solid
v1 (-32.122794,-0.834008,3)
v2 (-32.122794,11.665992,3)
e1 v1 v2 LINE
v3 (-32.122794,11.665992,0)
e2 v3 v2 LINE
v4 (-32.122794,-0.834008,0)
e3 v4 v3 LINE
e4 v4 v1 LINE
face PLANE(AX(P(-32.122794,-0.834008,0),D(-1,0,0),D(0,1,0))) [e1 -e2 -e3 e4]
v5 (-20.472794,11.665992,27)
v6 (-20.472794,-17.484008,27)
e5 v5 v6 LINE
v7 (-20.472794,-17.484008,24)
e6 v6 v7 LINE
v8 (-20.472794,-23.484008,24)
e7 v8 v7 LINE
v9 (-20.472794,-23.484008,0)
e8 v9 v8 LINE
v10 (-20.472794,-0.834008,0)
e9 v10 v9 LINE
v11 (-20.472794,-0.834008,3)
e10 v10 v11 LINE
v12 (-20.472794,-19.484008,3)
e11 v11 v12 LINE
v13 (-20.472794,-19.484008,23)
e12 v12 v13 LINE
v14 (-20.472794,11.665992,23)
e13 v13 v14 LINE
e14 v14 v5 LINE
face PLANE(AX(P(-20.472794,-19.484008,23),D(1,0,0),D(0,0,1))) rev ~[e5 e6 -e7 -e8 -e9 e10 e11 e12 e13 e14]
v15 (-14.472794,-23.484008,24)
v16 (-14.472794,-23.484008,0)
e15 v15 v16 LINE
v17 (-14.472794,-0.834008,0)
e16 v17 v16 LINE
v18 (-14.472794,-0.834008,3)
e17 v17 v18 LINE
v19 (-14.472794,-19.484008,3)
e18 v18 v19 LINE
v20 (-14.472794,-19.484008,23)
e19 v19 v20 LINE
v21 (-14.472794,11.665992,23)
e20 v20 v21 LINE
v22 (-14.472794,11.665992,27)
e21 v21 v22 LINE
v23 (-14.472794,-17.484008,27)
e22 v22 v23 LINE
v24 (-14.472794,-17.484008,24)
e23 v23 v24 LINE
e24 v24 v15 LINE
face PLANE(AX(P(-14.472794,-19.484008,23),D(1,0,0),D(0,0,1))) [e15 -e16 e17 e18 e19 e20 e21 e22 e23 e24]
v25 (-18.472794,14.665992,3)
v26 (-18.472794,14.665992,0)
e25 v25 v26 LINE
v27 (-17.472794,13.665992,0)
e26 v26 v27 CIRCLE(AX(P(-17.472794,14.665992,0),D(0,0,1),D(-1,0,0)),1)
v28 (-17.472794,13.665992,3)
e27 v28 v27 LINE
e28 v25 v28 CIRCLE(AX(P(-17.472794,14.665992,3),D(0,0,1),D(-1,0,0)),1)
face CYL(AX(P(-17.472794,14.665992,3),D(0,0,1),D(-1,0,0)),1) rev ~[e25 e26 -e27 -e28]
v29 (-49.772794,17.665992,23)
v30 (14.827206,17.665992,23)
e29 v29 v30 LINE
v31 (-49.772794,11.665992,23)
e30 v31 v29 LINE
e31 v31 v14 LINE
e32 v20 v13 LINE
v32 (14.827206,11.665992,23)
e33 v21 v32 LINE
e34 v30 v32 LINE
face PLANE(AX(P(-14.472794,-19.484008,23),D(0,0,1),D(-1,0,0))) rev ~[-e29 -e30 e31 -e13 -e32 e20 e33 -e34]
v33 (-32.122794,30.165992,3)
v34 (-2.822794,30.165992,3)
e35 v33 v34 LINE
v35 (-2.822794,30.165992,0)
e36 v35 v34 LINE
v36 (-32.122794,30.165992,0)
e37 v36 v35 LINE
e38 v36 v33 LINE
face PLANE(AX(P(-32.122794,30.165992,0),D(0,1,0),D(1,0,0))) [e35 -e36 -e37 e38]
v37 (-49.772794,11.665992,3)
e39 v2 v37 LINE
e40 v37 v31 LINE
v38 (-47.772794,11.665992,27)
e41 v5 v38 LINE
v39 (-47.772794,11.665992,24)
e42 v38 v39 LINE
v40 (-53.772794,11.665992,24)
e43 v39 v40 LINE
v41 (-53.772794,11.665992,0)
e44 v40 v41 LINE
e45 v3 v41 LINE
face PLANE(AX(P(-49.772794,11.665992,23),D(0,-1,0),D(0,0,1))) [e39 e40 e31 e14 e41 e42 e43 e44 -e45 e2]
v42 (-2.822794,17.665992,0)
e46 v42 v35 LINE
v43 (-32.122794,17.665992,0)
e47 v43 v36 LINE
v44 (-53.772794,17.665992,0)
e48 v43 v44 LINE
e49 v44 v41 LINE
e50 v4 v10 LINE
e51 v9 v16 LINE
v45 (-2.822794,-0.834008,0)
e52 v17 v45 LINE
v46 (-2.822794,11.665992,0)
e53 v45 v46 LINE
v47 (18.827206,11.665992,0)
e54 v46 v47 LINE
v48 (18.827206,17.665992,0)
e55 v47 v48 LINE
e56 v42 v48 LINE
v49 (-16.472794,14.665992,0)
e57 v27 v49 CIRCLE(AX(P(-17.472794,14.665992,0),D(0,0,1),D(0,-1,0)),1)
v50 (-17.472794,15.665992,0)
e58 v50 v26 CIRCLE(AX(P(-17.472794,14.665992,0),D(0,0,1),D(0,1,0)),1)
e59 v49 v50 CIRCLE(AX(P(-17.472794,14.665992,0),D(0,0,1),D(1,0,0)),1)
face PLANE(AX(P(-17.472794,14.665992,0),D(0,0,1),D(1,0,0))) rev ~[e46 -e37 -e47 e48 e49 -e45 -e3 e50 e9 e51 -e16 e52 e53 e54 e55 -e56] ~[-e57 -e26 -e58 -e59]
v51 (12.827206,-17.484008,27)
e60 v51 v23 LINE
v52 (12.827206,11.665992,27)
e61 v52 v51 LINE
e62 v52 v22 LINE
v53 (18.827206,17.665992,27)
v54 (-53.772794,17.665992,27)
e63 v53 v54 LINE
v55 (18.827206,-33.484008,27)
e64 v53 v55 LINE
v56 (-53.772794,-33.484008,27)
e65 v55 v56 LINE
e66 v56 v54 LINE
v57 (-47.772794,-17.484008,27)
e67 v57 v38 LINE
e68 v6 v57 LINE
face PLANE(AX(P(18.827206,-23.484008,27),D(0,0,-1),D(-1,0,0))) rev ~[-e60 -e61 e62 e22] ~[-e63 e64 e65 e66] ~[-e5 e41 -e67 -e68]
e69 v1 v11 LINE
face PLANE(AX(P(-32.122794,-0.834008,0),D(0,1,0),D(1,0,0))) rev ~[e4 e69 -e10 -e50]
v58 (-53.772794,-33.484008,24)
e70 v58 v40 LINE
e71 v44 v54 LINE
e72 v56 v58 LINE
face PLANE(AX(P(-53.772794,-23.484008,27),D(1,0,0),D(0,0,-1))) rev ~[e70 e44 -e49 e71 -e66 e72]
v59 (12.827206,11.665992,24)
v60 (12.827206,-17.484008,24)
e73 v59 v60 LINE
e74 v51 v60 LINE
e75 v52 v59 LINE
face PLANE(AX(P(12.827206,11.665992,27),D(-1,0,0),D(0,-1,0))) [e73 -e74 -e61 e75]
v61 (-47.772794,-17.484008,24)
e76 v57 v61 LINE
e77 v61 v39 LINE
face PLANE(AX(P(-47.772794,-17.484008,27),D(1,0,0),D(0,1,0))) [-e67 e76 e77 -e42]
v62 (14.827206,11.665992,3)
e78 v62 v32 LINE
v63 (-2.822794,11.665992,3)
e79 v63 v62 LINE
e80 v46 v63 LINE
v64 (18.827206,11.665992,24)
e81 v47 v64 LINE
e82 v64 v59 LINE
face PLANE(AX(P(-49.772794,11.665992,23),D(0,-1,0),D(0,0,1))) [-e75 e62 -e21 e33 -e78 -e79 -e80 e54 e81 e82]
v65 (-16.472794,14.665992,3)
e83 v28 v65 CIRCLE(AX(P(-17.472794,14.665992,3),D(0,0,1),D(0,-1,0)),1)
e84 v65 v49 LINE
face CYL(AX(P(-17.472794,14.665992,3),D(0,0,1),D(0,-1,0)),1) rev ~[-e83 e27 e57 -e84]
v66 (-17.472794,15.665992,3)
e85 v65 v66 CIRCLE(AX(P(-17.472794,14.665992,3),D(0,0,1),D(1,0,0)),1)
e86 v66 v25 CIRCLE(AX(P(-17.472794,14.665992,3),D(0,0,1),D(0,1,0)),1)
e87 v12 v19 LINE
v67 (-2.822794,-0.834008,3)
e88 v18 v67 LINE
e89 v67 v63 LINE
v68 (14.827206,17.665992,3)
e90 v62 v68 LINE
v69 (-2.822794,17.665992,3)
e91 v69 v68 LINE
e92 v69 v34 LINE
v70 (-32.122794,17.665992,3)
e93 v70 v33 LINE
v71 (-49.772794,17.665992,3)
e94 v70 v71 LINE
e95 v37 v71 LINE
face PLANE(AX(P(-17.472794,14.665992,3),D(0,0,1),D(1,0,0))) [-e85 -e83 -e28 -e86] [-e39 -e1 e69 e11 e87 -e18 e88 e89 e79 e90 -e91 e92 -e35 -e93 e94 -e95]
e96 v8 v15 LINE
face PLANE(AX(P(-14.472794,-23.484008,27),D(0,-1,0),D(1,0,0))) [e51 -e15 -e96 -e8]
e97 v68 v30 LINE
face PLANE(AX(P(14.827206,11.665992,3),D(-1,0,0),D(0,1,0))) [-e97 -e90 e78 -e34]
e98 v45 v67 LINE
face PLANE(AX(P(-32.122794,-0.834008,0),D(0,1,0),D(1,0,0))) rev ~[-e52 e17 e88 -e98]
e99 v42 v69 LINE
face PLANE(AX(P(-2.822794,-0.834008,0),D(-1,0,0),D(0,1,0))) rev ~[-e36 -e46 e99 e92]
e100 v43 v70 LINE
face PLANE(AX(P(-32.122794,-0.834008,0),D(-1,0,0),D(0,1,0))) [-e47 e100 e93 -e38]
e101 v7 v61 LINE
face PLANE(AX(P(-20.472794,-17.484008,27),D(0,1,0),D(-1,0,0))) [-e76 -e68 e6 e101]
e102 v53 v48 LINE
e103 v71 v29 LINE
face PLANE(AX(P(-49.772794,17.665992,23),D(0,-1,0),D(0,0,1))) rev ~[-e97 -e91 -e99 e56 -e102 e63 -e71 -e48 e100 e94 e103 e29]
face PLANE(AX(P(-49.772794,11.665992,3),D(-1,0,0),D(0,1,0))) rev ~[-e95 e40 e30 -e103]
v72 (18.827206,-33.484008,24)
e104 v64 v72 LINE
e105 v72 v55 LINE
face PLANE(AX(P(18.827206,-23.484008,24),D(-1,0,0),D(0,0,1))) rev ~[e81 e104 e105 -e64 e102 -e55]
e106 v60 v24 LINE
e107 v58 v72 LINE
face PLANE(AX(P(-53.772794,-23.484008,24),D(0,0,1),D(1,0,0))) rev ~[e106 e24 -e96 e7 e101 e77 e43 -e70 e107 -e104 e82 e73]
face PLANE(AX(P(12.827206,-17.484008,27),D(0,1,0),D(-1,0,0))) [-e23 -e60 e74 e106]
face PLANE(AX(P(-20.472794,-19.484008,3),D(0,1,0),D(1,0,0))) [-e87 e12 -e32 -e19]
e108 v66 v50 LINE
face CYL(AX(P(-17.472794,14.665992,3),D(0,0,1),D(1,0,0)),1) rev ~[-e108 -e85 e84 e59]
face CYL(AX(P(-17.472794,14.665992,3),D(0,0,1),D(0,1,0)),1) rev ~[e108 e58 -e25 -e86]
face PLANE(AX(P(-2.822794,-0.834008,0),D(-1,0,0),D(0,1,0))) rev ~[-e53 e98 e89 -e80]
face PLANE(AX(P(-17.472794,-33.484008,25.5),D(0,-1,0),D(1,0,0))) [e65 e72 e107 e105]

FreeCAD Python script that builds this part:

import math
import FreeCAD as App
import Part
import Sketcher
from FreeCAD import Vector


def add_polygon(sketch, points):
    """Adds a closed chain of lines whose ends are joined by coincident constraints."""
    first, n = sketch.GeometryCount, len(points)
    for a, b in zip(points, points[1:] + points[:1]):
        sketch.addGeometry(Part.LineSegment(App.Vector(*a, 0), App.Vector(*b, 0)), False)
    for i in range(n):
        sketch.addConstraint(Sketcher.Constraint("Coincident", first + i, 2, first + (i + 1) % n, 1))

doc = App.newDocument("Part")
params = doc.addObject("Spreadsheet::Sheet", "Params")
for row, (alias, value) in enumerate([
    ("sketch1_height", "31 mm"),
    ("sketch1_width", "29.3 mm"),
    ("pad1_length", "3 mm"),
    ("sketch2_width", "6 mm"),
    ("sketch2_height", "3 mm"),
    ("pad2_length", "21.65 mm"),
    ("sketch3_width", "6 mm"),
    ("sketch3_height", "3 mm"),
    ("pad3_length", "21.65 mm"),
    ("sketch4_width", "6 mm"),
    ("sketch4_height", "3 mm"),
    ("pad4_length", "22.65 mm"),
    ("sketch5_width", "4 mm"),
    ("sketch5_width2", "6 mm"),
    ("pad5_length", "24 mm"),
    ("sketch6_width", "6 mm"),
    ("sketch6_height", "4 mm"),
    ("pad6_length", "35.95 mm"),
    ("sketch7_width", "6 mm"),
    ("sketch7_height", "4 mm"),
    ("pad7_length", "35.95 mm"),
    ("sketch8_width", "6 mm"),
    ("sketch8_height", "4 mm"),
    ("pad8_length", "33.8 mm"),
    ("sketch9_radius", "1 mm"),
    ("pocket1_length", "4 mm"),
    ("sketch10_width", "6 mm"),
    ("sketch10_width2", "33.3 mm"),
    ("sketch10_height", "35.15 mm"),
    ("pad9_length", "3 mm"),
    ("sketch11_height", "3 mm"),
    ("sketch11_width", "72.6 mm"),
    ("pad10_length", "10 mm"),
], start=1):
    params.set(f"A{row}", alias)
    params.set(f"B{row}", "=" + value)
    params.setAlias(f"B{row}", alias)

body = doc.addObject("PartDesign::Body", "Body")

sketch1 = doc.addObject("Sketcher::SketchObject", "Sketch")
body.addObject(sketch1)
sketch1.AttachmentSupport = (doc.XY_Plane, [""])
sketch1.MapMode = "FlatFace"
add_polygon(sketch1, [(-32, 30), (-32, -1), (-3, -1), (-3, 30)])
sketch1.addConstraint([
    Sketcher.Constraint("Vertical", 0),
    Sketcher.Constraint("Horizontal", 1),
    Sketcher.Constraint("Vertical", 2),
    Sketcher.Constraint("Horizontal", 3),
    Sketcher.Constraint("DistanceY", 0, 2, 0, 1, 31.0),
    Sketcher.Constraint("DistanceX", 1, 1, 1, 2, 29.3),
    Sketcher.Constraint("DistanceY", 0, 2, -1, 1, 0.834008),
    Sketcher.Constraint("DistanceX", 0, 2, -1, 1, 32.122794),
])
sketch1.setExpression("Constraints[8]", "Params.sketch1_height")
sketch1.setExpression("Constraints[9]", "Params.sketch1_width")
pad1 = doc.addObject("PartDesign::Pad", "Pad")
body.addObject(pad1)
pad1.Profile = sketch1
pad1.setExpression("Length", "Params.pad1_length")

sketch2 = doc.addObject("Sketcher::SketchObject", "Sketch001")
body.addObject(sketch2)
sketch2.AttachmentSupport = (doc.YZ_Plane, [""])
sketch2.MapMode = "FlatFace"
sketch2.AttachmentOffset = App.Placement(Vector(0, 0, -2.822794), App.Rotation())
add_polygon(sketch2, [(11.7, 3), (11.7, 0), (17.7, 0), (17.7, 3)])
sketch2.addConstraint([
    Sketcher.Constraint("Vertical", 0),
    Sketcher.Constraint("Horizontal", 1),
    Sketcher.Constraint("Vertical", 2),
    Sketcher.Constraint("Horizontal", 3),
    Sketcher.Constraint("PointOnObject", 0, 2, -1),
    Sketcher.Constraint("DistanceX", 1, 1, 1, 2, 6.0),
    Sketcher.Constraint("DistanceY", 0, 2, 0, 1, 3.0),
    Sketcher.Constraint("DistanceX", -1, 1, 0, 2, 11.665992),
])
sketch2.setExpression("Constraints[9]", "Params.sketch2_width")
sketch2.setExpression("Constraints[10]", "Params.sketch2_height")
pad2 = doc.addObject("PartDesign::Pad", "Pad001")
body.addObject(pad2)
pad2.Profile = sketch2
pad2.setExpression("Length", "Params.pad2_length")

sketch3 = doc.addObject("Sketcher::SketchObject", "Sketch002")
body.addObject(sketch3)
sketch3.AttachmentSupport = (doc.YZ_Plane, [""])
sketch3.MapMode = "FlatFace"
sketch3.AttachmentOffset = App.Placement(Vector(0, 0, -32.122794), App.Rotation())
add_polygon(sketch3, [(17.7, 3), (17.7, 0), (11.7, 0), (11.7, 3)])
sketch3.addConstraint([
    Sketcher.Constraint("Vertical", 0),
    Sketcher.Constraint("Horizontal", 1),
    Sketcher.Constraint("Vertical", 2),
    Sketcher.Constraint("Horizontal", 3),
    Sketcher.Constraint("PointOnObject", 0, 2, -1),
    Sketcher.Constraint("DistanceX", 1, 2, 1, 1, 6.0),
    Sketcher.Constraint("DistanceY", 0, 2, 0, 1, 3.0),
    Sketcher.Constraint("DistanceX", -1, 1, 0, 2, 17.665992),
])
sketch3.setExpression("Constraints[9]", "Params.sketch3_width")
sketch3.setExpression("Constraints[10]", "Params.sketch3_height")
pad3 = doc.addObject("PartDesign::Pad", "Pad002")
body.addObject(pad3)
pad3.Profile = sketch3
pad3.setExpression("Length", "Params.pad3_length")
pad3.Reversed = True

sketch4 = doc.addObject("Sketcher::SketchObject", "Sketch003")
body.addObject(sketch4)
sketch4.AttachmentSupport = (doc.XZ_Plane, [""])
sketch4.MapMode = "FlatFace"
sketch4.AttachmentOffset = App.Placement(Vector(0, 0, 0.834008), App.Rotation())
add_polygon(sketch4, [(-20.5, 3), (-20.5, 0), (-14.5, 0), (-14.5, 3)])
sketch4.addConstraint([
    Sketcher.Constraint("Vertical", 0),
    Sketcher.Constraint("Horizontal", 1),
    Sketcher.Constraint("Vertical", 2),
    Sketcher.Constraint("Horizontal", 3),
    Sketcher.Constraint("PointOnObject", 0, 2, -1),
    Sketcher.Constraint("DistanceX", 1, 1, 1, 2, 6.0),
    Sketcher.Constraint("DistanceY", 0, 2, 0, 1, 3.0),
    Sketcher.Constraint("DistanceX", 0, 2, -1, 1, 20.472794),
])
sketch4.setExpression("Constraints[9]", "Params.sketch4_width")
sketch4.setExpression("Constraints[10]", "Params.sketch4_height")
pad4 = doc.addObject("PartDesign::Pad", "Pad003")
body.addObject(pad4)
pad4.Profile = sketch4
pad4.setExpression("Length", "Params.pad4_length")

sketch5 = doc.addObject("Sketcher::SketchObject", "Sketch004")
body.addObject(sketch5)
sketch5.AttachmentSupport = (doc.XY_Plane, [""])
sketch5.MapMode = "FlatFace"
sketch5.AttachmentOffset = App.Placement(Vector(0, 0, 3), App.Rotation())
add_polygon(sketch5, [(14.8, 17.7), (14.8, 11.7), (18.8, 11.7), (18.8, 17.7)])
add_polygon(sketch5, [(-20.5, -19.5), (-20.5, -23.5), (-14.5, -23.5), (-14.5, -19.5)])
add_polygon(sketch5, [(-53.8, 17.7), (-53.8, 11.7), (-49.8, 11.7), (-49.8, 17.7)])
sketch5.addConstraint([
    Sketcher.Constraint("Vertical", 0),
    Sketcher.Constraint("Horizontal", 1),
    Sketcher.Constraint("Vertical", 2),
    Sketcher.Constraint("Horizontal", 3),
    Sketcher.Constraint("Vertical", 4),
    Sketcher.Constraint("Horizontal", 5),
    Sketcher.Constraint("Vertical", 6),
    Sketcher.Constraint("Horizontal", 7),
    Sketcher.Constraint("Vertical", 8),
    Sketcher.Constraint("Horizontal", 9),
    Sketcher.Constraint("Vertical", 10),
    Sketcher.Constraint("Horizontal", 11),
    Sketcher.Constraint("Horizontal", 1, 2, 8, 2),
    Sketcher.Constraint("Horizontal", 3, 2, 10, 2),
    Sketcher.Constraint("Equal", 3, 9),
    Sketcher.Constraint("Equal", 7, 0),
    Sketcher.Constraint("Equal", 11, 4),
    Sketcher.Constraint("DistanceX", 1, 1, 1, 2, 4.0),
    Sketcher.Constraint("DistanceX", 5, 1, 5, 2, 6.0),
    Sketcher.Constraint("DistanceX", 4, 2, 0, 2, 35.3),
    Sketcher.Constraint("DistanceX", 8, 2, 7, 2, 33.3),
    Sketcher.Constraint("DistanceY", 4, 2, 0, 2, 35.15),
    Sketcher.Constraint("DistanceY", -1, 1, 0, 2, 11.665992),
    Sketcher.Constraint("DistanceX", -1, 1, 0, 2, 14.827206),
])
sketch5.setExpression("Constraints[29]", "Params.sketch5_width")
sketch5.setExpression("Constraints[30]", "Params.sketch5_width2")
pad5 = doc.addObject("PartDesign::Pad", "Pad004")
body.addObject(pad5)
pad5.Profile = sketch5
pad5.setExpression("Length", "Params.pad5_length")

sketch6 = doc.addObject("Sketcher::SketchObject", "Sketch005")
body.addObject(sketch6)
sketch6.AttachmentSupport = (doc.YZ_Plane, [""])
sketch6.MapMode = "FlatFace"
sketch6.AttachmentOffset = App.Placement(Vector(0, 0, 14.827206), App.Rotation())
add_polygon(sketch6, [(17.7, 27), (17.7, 23), (11.7, 23), (11.7, 27)])
sketch6.addConstraint([
    Sketcher.Constraint("Vertical", 0),
    Sketcher.Constraint("Horizontal", 1),
    Sketcher.Constraint("Vertical", 2),
    Sketcher.Constraint("Horizontal", 3),
    Sketcher.Constraint("DistanceX", 1, 2, 1, 1, 6.0),
    Sketcher.Constraint("DistanceY", 0, 2, 0, 1, 4.0),
    Sketcher.Constraint("DistanceY", -1, 1, 0, 2, 23.0),
    Sketcher.Constraint("DistanceX", -1, 1, 0, 2, 17.665992),
])
sketch6.setExpression("Constraints[8]", "Params.sketch6_width")
sketch6.setExpression("Constraints[9]", "Params.sketch6_height")
pad6 = doc.addObject("PartDesign::Pad", "Pad005")
body.addObject(pad6)
pad6.Profile = sketch6
pad6.setExpression("Length", "Params.pad6_length")
pad6.Reversed = True

sketch7 = doc.addObject("Sketcher::SketchObject", "Sketch006")
body.addObject(sketch7)
sketch7.AttachmentSupport = (doc.YZ_Plane, [""])
sketch7.MapMode = "FlatFace"
sketch7.AttachmentOffset = App.Placement(Vector(0, 0, -49.772794), App.Rotation())
add_polygon(sketch7, [(11.7, 27), (11.7, 23), (17.7, 23), (17.7, 27)])
sketch7.addConstraint([
    Sketcher.Constraint("Vertical", 0),
    Sketcher.Constraint("Horizontal", 1),
    Sketcher.Constraint("Vertical", 2),
    Sketcher.Constraint("Horizontal", 3),
    Sketcher.Constraint("DistanceX", 1, 1, 1, 2, 6.0),
    Sketcher.Constraint("DistanceY", 0, 2, 0, 1, 4.0),
    Sketcher.Constraint("DistanceY", -1, 1, 0, 2, 23.0),
    Sketcher.Constraint("DistanceX", -1, 1, 0, 2, 11.665992),
])
sketch7.setExpression("Constraints[8]", "Params.sketch7_width")
sketch7.setExpression("Constraints[9]", "Params.sketch7_height")
pad7 = doc.addObject("PartDesign::Pad", "Pad006")
body.addObject(pad7)
pad7.Profile = sketch7
pad7.setExpression("Length", "Params.pad7_length")

sketch8 = doc.addObject("Sketcher::SketchObject", "Sketch007")
body.addObject(sketch8)
sketch8.AttachmentSupport = (doc.XZ_Plane, [""])
sketch8.MapMode = "FlatFace"
sketch8.AttachmentOffset = App.Placement(Vector(0, 0, 19.484008), App.Rotation())
add_polygon(sketch8, [(-14.5, 27), (-14.5, 23), (-20.5, 23), (-20.5, 27)])
sketch8.addConstraint([
    Sketcher.Constraint("Vertical", 0),
    Sketcher.Constraint("Horizontal", 1),
    Sketcher.Constraint("Vertical", 2),
    Sketcher.Constraint("Horizontal", 3),
    Sketcher.Constraint("DistanceX", 1, 2, 1, 1, 6.0),
    Sketcher.Constraint("DistanceY", 0, 2, 0, 1, 4.0),
    Sketcher.Constraint("DistanceY", -1, 1, 0, 2, 23.0),
    Sketcher.Constraint("DistanceX", 0, 2, -1, 1, 14.472794),
])
sketch8.setExpression("Constraints[8]", "Params.sketch8_width")
sketch8.setExpression("Constraints[9]", "Params.sketch8_height")
pad8 = doc.addObject("PartDesign::Pad", "Pad007")
body.addObject(pad8)
pad8.Profile = sketch8
pad8.setExpression("Length", "Params.pad8_length")
pad8.Reversed = True

sketch9 = doc.addObject("Sketcher::SketchObject", "Sketch008")
body.addObject(sketch9)
sketch9.AttachmentSupport = (doc.XY_Plane, [""])
sketch9.MapMode = "FlatFace"
sketch9.AttachmentOffset = App.Placement(Vector(0, 0, 3), App.Rotation())
sketch9.addGeometry([
    Part.ArcOfCircle(Part.Circle(Vector(-17.5, 14.7, 0), Vector(0, 0, 1), 1), math.radians(-90), math.radians(0)),
    Part.ArcOfCircle(Part.Circle(Vector(-17.5, 14.7, 0), Vector(0, 0, 1), 1), math.radians(0), math.radians(90)),
    Part.ArcOfCircle(Part.Circle(Vector(-17.5, 14.7, 0), Vector(0, 0, 1), 1), math.radians(90), math.radians(180)),
    Part.ArcOfCircle(Part.Circle(Vector(-17.5, 14.7, 0), Vector(0, 0, 1), 1), math.radians(180), math.radians(270)),
], False)
sketch9.addConstraint([
    Sketcher.Constraint("Tangent", 0, 2, 1, 1),
    Sketcher.Constraint("Tangent", 1, 2, 2, 1),
    Sketcher.Constraint("Tangent", 2, 2, 3, 1),
    Sketcher.Constraint("Tangent", 3, 2, 0, 1),
    Sketcher.Constraint("Equal", 0, 1),
    Sketcher.Constraint("Horizontal", 3, 3, 0, 2),
    Sketcher.Constraint("Horizontal", 0, 2, 2, 2),
    Sketcher.Constraint("Vertical", 3, 3, 1, 2),
    Sketcher.Constraint("Vertical", 1, 2, 3, 2),
    Sketcher.Constraint("Radius", 0, 1.0),
    Sketcher.Constraint("DistanceY", -1, 1, 0, 3, 14.665992),
    Sketcher.Constraint("DistanceX", 0, 3, -1, 1, 17.472794),
])
sketch9.setExpression("Constraints[9]", "Params.sketch9_radius")
pocket1 = doc.addObject("PartDesign::Pocket", "Pocket")
body.addObject(pocket1)
pocket1.Profile = sketch9
pocket1.setExpression("Length", "Params.pocket1_length")

sketch10 = doc.addObject("Sketcher::SketchObject", "Sketch009")
body.addObject(sketch10)
sketch10.AttachmentSupport = (doc.XY_Plane, [""])
sketch10.MapMode = "FlatFace"
sketch10.AttachmentOffset = App.Placement(Vector(0, 0, 27), App.Rotation())
add_polygon(sketch10, [(-14, -17), (-14, -23), (19, -23), (19, 12), (13, 12), (13, -17)])
add_polygon(sketch10, [(-48, 12), (-54, 12), (-54, -23), (-20, -23), (-20, -17), (-48, -17)])
sketch10.addConstraint([
    Sketcher.Constraint("Vertical", 0),
    Sketcher.Constraint("Horizontal", 1),
    Sketcher.Constraint("Vertical", 2),
    Sketcher.Constraint("Horizontal", 3),
    Sketcher.Constraint("Vertical", 4),
    Sketcher.Constraint("Horizontal", 5),
    Sketcher.Constraint("Horizontal", 6),
    Sketcher.Constraint("Vertical", 7),
    Sketcher.Constraint("Horizontal", 8),
    Sketcher.Constraint("Vertical", 9),
    Sketcher.Constraint("Horizontal", 10),
    Sketcher.Constraint("Vertical", 11),
    Sketcher.Constraint("Horizontal", 3, 2, 6, 2),
    Sketcher.Constraint("Horizontal", 1, 2, 7, 2),
    Sketcher.Constraint("Horizontal", 5, 2, 9, 2),
    Sketcher.Constraint("Equal", 3, 6),
    Sketcher.Constraint("Equal", 1, 8),
    Sketcher.Constraint("Equal", 6, 0),
    Sketcher.Constraint("DistanceX", 3, 2, 3, 1, 6.0),
    Sketcher.Constraint("DistanceX", 1, 1, 1, 2, 33.3),
    Sketcher.Constraint("DistanceX", 8, 2, 0, 2, 6.0),
    Sketcher.Constraint("DistanceY", 2, 1, 2, 2, 35.15),
    Sketcher.Constraint("DistanceY", 0, 2, -1, 1, 23.484008),
    Sketcher.Constraint("DistanceX", 0, 2, -1, 1, 14.472794),
])
sketch10.setExpression("Constraints[30]", "Params.sketch10_width")
sketch10.setExpression("Constraints[31]", "Params.sketch10_width2")
sketch10.setExpression("Constraints[33]", "Params.sketch10_height")
pad9 = doc.addObject("PartDesign::Pad", "Pad008")
body.addObject(pad9)
pad9.Profile = sketch10
pad9.setExpression("Length", "Params.pad9_length")
pad9.Reversed = True

sketch11 = doc.addObject("Sketcher::SketchObject", "Sketch010")
body.addObject(sketch11)
sketch11.AttachmentSupport = (doc.XZ_Plane, [""])
sketch11.MapMode = "FlatFace"
sketch11.AttachmentOffset = App.Placement(Vector(0, 0, 23.484008), App.Rotation())
add_polygon(sketch11, [(-53.8, 24), (18.8, 24), (18.8, 27), (-53.8, 27)])
sketch11.addConstraint([
    Sketcher.Constraint("Horizontal", 0),
    Sketcher.Constraint("Vertical", 1),
    Sketcher.Constraint("Horizontal", 2),
    Sketcher.Constraint("Vertical", 3),
    Sketcher.Constraint("DistanceY", 1, 1, 1, 2, 3.0),
    Sketcher.Constraint("DistanceX", 0, 1, 0, 2, 72.6),
    Sketcher.Constraint("DistanceY", -1, 1, 0, 2, 24.0),
    Sketcher.Constraint("DistanceX", -1, 1, 0, 2, 18.827206),
])
sketch11.setExpression("Constraints[8]", "Params.sketch11_height")
sketch11.setExpression("Constraints[9]", "Params.sketch11_width")
pad10 = doc.addObject("PartDesign::Pad", "Pad009")
body.addObject(pad10)
pad10.Profile = sketch11
pad10.setExpression("Length", "Params.pad10_length")

doc.recompute()
